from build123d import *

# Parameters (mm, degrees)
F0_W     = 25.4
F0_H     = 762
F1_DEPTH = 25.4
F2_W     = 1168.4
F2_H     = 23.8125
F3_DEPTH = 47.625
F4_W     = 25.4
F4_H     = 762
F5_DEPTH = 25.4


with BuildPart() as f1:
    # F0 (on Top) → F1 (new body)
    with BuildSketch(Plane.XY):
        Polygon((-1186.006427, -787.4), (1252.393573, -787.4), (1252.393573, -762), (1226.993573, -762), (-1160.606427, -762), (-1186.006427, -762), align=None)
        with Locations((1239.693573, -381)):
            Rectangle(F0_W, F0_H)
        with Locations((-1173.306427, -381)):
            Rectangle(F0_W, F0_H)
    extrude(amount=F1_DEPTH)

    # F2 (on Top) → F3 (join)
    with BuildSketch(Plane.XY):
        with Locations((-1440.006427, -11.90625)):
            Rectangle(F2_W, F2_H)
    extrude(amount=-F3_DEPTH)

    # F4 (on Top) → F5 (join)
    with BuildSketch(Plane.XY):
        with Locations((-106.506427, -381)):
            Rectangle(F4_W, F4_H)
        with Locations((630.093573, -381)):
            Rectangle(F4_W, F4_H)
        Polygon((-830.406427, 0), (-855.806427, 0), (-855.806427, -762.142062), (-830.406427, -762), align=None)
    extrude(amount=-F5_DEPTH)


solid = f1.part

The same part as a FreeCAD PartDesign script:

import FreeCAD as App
import Part
import Sketcher
from FreeCAD import Vector
Q = App.Units.Quantity


def add_polygon(sketch, points):
    """Adds a closed chain of lines whose ends are joined by coincident constraints."""
    first, n = sketch.GeometryCount, len(points)
    for a, b in zip(points, points[1:] + points[:1]):
        sketch.addGeometry(Part.LineSegment(App.Vector(*a, 0), App.Vector(*b, 0)), False)
    for i in range(n):
        sketch.addConstraint(Sketcher.Constraint("Coincident", first + i, 2, first + (i + 1) % n, 1))

doc = App.newDocument("Part")
params = doc.addObject("Spreadsheet::Sheet", "Params")
for row, (alias, value) in enumerate([
    ("sketch1_width", "96 in"),
    ("sketch1_width2", "1 in"),
    ("sketch1_height", "31 in"),
    ("sketch1_height2", "30 in"),
    ("pad1_length", "1 in"),
    ("sketch2_width", "46 in"),
    ("sketch2_height", "0.9375 in"),
    ("pad2_length", "1.875 in"),
    ("sketch3_width", "1 in"),
    ("sketch3_height", "30 in"),
    ("pad3_length", "1 in"),
], start=1):
    params.set(f"A{row}", alias)
    params.set(f"B{row}", "=" + value)
    params.setAlias(f"B{row}", alias)

body = doc.addObject("PartDesign::Body", "Body")
body.AllowCompound = True

sketch1 = body.newObject("Sketcher::SketchObject", "Sketch")
sketch1.AttachmentSupport = (doc.getObject("XY_Plane"), [""])
sketch1.MapMode = "FlatFace"
add_polygon(sketch1, [(-1186.006427, -787.4), (1252.393573, -787.4), (1252.393573, 0), (1226.993573, 0), (1226.993573, -762), (-1160.606427, -762), (-1160.606427, 0), (-1186.006427, 0)])
sketch1.addConstraint(Sketcher.Constraint("Horizontal", 0))
sketch1.addConstraint(Sketcher.Constraint("Vertical", 1))
sketch1.addConstraint(Sketcher.Constraint("Horizontal", 2))
sketch1.addConstraint(Sketcher.Constraint("Vertical", 3))
sketch1.addConstraint(Sketcher.Constraint("Horizontal", 4))
sketch1.addConstraint(Sketcher.Constraint("Vertical", 5))
sketch1.addConstraint(Sketcher.Constraint("Horizontal", 6))
sketch1.addConstraint(Sketcher.Constraint("Vertical", 7))
sketch1.addConstraint(Sketcher.Constraint("PointOnObject", 1, 2, -1))
sketch1.addConstraint(Sketcher.Constraint("PointOnObject", 5, 2, -1))
sketch1.addConstraint(Sketcher.Constraint("Equal", 2, 6))
sketch1.addConstraint(Sketcher.Constraint("DistanceX", 0, 1, 0, 2, Q("96 in")))
sketch1.addConstraint(Sketcher.Constraint("DistanceX", 2, 2, 2, 1, Q("1 in")))
sketch1.addConstraint(Sketcher.Constraint("DistanceY", 1, 1, 1, 2, Q("31 in")))
sketch1.addConstraint(Sketcher.Constraint("DistanceY", 3, 2, 3, 1, Q("30 in")))
sketch1.addConstraint(Sketcher.Constraint("DistanceX", -1, 1, 0, 2, Q("1252.393573 mm")))
sketch1.setExpression("Constraints[19]", "Params.sketch1_width")
sketch1.setExpression("Constraints[20]", "Params.sketch1_width2")
sketch1.setExpression("Constraints[21]", "Params.sketch1_height")
sketch1.setExpression("Constraints[22]", "Params.sketch1_height2")
pad1 = body.newObject("PartDesign::Pad", "Pad")
pad1.Profile = sketch1
pad1.setExpression("Length", "Params.pad1_length")

sketch2 = body.newObject("Sketcher::SketchObject", "Sketch001")
sketch2.AttachmentSupport = (doc.getObject("XY_Plane"), [""])
sketch2.MapMode = "FlatFace"
add_polygon(sketch2, [(-2024.206427, 0), (-2024.206427, -23.8125), (-855.806427, -23.8125), (-855.806427, 0)])
sketch2.addConstraint(Sketcher.Constraint("Vertical", 0))
sketch2.addConstraint(Sketcher.Constraint("Horizontal", 1))
sketch2.addConstraint(Sketcher.Constraint("Vertical", 2))
sketch2.addConstraint(Sketcher.Constraint("Horizontal", 3))
sketch2.addConstraint(Sketcher.Constraint("PointOnObject", 2, 2, -1))
sketch2.addConstraint(Sketcher.Constraint("DistanceX", 1, 1, 1, 2, Q("46 in")))
sketch2.addConstraint(Sketcher.Constraint("DistanceY", 0, 2, 0, 1, Q("0.9375 in")))
sketch2.addConstraint(Sketcher.Constraint("DistanceX", 0, 2, -1, 1, Q("2024.206427 mm")))
sketch2.setExpression("Constraints[9]", "Params.sketch2_width")
sketch2.setExpression("Constraints[10]", "Params.sketch2_height")
pad2 = body.newObject("PartDesign::Pad", "Pad001")
pad2.Profile = sketch2
pad2.setExpression("Length", "Params.pad2_length")
pad2.Reversed = True

sketch3 = body.newObject("Sketcher::SketchObject", "Sketch002")
sketch3.AttachmentSupport = (doc.getObject("XY_Plane"), [""])
sketch3.MapMode = "FlatFace"
add_polygon(sketch3, [(-119.206427, 0), (-119.206427, -762), (-93.806427, -762), (-93.806427, 0)])
add_polygon(sketch3, [(617.393573, 0), (617.393573, -762), (642.793573, -762), (642.793573, 0)])
add_polygon(sketch3, [(-830.406427, 0), (-855.806427, 0), (-855.806427, -762.142062), (-830.406427, -762)])
sketch3.addConstraint(Sketcher.Constraint("Vertical", 0))
sketch3.addConstraint(Sketcher.Constraint("Horizontal", 1))
sketch3.addConstraint(Sketcher.Constraint("Vertical", 2))
sketch3.addConstraint(Sketcher.Constraint("Horizontal", 3))
sketch3.addConstraint(Sketcher.Constraint("Vertical", 4))
sketch3.addConstraint(Sketcher.Constraint("Horizontal", 5))
sketch3.addConstraint(Sketcher.Constraint("Vertical", 6))
sketch3.addConstraint(Sketcher.Constraint("Horizontal", 7))
sketch3.addConstraint(Sketcher.Constraint("Horizontal", 8))
sketch3.addConstraint(Sketcher.Constraint("Vertical", 9))
sketch3.addConstraint(Sketcher.Constraint("Vertical", 11))
sketch3.addConstraint(Sketcher.Constraint("PointOnObject", 2, 2, -1))
sketch3.addConstraint(Sketcher.Constraint("PointOnObject", 6, 2, -1))
sketch3.addConstraint(Sketcher.Constraint("PointOnObject", 8, 2, -1))
sketch3.addConstraint(Sketcher.Constraint("Horizontal", 1, 2, 4, 2))
sketch3.addConstraint(Sketcher.Constraint("Horizontal", 5, 2, 10, 2))
sketch3.addConstraint(Sketcher.Constraint("Equal", 3, 5))
sketch3.addConstraint(Sketcher.Constraint("Equal", 7, 8))
sketch3.addConstraint(Sketcher.Constraint("DistanceX", 1, 1, 1, 2, Q("1 in")))
sketch3.addConstraint(Sketcher.Constraint("DistanceY", 0, 2, 0, 1, Q("30 in")))
sketch3.addConstraint(Sketcher.Constraint("DistanceX", 1, 2, 4, 2, Q("28 in")))
sketch3.addConstraint(Sketcher.Constraint("DistanceX", 8, 2, 3, 2, Q("29 in")))
sketch3.addConstraint(Sketcher.Constraint("DistanceY", 9, 2, 9, 1, Q("762.142062 mm")))
sketch3.addConstraint(Sketcher.Constraint("DistanceX", 0, 2, -1, 1, Q("119.206427 mm")))
sketch3.setExpression("Constraints[30]", "Params.sketch3_width")
sketch3.setExpression("Constraints[31]", "Params.sketch3_height")
pad3 = body.newObject("PartDesign::Pad", "Pad002")
pad3.Profile = sketch3
pad3.setExpression("Length", "Params.pad3_length")
pad3.Reversed = True

doc.recompute()
